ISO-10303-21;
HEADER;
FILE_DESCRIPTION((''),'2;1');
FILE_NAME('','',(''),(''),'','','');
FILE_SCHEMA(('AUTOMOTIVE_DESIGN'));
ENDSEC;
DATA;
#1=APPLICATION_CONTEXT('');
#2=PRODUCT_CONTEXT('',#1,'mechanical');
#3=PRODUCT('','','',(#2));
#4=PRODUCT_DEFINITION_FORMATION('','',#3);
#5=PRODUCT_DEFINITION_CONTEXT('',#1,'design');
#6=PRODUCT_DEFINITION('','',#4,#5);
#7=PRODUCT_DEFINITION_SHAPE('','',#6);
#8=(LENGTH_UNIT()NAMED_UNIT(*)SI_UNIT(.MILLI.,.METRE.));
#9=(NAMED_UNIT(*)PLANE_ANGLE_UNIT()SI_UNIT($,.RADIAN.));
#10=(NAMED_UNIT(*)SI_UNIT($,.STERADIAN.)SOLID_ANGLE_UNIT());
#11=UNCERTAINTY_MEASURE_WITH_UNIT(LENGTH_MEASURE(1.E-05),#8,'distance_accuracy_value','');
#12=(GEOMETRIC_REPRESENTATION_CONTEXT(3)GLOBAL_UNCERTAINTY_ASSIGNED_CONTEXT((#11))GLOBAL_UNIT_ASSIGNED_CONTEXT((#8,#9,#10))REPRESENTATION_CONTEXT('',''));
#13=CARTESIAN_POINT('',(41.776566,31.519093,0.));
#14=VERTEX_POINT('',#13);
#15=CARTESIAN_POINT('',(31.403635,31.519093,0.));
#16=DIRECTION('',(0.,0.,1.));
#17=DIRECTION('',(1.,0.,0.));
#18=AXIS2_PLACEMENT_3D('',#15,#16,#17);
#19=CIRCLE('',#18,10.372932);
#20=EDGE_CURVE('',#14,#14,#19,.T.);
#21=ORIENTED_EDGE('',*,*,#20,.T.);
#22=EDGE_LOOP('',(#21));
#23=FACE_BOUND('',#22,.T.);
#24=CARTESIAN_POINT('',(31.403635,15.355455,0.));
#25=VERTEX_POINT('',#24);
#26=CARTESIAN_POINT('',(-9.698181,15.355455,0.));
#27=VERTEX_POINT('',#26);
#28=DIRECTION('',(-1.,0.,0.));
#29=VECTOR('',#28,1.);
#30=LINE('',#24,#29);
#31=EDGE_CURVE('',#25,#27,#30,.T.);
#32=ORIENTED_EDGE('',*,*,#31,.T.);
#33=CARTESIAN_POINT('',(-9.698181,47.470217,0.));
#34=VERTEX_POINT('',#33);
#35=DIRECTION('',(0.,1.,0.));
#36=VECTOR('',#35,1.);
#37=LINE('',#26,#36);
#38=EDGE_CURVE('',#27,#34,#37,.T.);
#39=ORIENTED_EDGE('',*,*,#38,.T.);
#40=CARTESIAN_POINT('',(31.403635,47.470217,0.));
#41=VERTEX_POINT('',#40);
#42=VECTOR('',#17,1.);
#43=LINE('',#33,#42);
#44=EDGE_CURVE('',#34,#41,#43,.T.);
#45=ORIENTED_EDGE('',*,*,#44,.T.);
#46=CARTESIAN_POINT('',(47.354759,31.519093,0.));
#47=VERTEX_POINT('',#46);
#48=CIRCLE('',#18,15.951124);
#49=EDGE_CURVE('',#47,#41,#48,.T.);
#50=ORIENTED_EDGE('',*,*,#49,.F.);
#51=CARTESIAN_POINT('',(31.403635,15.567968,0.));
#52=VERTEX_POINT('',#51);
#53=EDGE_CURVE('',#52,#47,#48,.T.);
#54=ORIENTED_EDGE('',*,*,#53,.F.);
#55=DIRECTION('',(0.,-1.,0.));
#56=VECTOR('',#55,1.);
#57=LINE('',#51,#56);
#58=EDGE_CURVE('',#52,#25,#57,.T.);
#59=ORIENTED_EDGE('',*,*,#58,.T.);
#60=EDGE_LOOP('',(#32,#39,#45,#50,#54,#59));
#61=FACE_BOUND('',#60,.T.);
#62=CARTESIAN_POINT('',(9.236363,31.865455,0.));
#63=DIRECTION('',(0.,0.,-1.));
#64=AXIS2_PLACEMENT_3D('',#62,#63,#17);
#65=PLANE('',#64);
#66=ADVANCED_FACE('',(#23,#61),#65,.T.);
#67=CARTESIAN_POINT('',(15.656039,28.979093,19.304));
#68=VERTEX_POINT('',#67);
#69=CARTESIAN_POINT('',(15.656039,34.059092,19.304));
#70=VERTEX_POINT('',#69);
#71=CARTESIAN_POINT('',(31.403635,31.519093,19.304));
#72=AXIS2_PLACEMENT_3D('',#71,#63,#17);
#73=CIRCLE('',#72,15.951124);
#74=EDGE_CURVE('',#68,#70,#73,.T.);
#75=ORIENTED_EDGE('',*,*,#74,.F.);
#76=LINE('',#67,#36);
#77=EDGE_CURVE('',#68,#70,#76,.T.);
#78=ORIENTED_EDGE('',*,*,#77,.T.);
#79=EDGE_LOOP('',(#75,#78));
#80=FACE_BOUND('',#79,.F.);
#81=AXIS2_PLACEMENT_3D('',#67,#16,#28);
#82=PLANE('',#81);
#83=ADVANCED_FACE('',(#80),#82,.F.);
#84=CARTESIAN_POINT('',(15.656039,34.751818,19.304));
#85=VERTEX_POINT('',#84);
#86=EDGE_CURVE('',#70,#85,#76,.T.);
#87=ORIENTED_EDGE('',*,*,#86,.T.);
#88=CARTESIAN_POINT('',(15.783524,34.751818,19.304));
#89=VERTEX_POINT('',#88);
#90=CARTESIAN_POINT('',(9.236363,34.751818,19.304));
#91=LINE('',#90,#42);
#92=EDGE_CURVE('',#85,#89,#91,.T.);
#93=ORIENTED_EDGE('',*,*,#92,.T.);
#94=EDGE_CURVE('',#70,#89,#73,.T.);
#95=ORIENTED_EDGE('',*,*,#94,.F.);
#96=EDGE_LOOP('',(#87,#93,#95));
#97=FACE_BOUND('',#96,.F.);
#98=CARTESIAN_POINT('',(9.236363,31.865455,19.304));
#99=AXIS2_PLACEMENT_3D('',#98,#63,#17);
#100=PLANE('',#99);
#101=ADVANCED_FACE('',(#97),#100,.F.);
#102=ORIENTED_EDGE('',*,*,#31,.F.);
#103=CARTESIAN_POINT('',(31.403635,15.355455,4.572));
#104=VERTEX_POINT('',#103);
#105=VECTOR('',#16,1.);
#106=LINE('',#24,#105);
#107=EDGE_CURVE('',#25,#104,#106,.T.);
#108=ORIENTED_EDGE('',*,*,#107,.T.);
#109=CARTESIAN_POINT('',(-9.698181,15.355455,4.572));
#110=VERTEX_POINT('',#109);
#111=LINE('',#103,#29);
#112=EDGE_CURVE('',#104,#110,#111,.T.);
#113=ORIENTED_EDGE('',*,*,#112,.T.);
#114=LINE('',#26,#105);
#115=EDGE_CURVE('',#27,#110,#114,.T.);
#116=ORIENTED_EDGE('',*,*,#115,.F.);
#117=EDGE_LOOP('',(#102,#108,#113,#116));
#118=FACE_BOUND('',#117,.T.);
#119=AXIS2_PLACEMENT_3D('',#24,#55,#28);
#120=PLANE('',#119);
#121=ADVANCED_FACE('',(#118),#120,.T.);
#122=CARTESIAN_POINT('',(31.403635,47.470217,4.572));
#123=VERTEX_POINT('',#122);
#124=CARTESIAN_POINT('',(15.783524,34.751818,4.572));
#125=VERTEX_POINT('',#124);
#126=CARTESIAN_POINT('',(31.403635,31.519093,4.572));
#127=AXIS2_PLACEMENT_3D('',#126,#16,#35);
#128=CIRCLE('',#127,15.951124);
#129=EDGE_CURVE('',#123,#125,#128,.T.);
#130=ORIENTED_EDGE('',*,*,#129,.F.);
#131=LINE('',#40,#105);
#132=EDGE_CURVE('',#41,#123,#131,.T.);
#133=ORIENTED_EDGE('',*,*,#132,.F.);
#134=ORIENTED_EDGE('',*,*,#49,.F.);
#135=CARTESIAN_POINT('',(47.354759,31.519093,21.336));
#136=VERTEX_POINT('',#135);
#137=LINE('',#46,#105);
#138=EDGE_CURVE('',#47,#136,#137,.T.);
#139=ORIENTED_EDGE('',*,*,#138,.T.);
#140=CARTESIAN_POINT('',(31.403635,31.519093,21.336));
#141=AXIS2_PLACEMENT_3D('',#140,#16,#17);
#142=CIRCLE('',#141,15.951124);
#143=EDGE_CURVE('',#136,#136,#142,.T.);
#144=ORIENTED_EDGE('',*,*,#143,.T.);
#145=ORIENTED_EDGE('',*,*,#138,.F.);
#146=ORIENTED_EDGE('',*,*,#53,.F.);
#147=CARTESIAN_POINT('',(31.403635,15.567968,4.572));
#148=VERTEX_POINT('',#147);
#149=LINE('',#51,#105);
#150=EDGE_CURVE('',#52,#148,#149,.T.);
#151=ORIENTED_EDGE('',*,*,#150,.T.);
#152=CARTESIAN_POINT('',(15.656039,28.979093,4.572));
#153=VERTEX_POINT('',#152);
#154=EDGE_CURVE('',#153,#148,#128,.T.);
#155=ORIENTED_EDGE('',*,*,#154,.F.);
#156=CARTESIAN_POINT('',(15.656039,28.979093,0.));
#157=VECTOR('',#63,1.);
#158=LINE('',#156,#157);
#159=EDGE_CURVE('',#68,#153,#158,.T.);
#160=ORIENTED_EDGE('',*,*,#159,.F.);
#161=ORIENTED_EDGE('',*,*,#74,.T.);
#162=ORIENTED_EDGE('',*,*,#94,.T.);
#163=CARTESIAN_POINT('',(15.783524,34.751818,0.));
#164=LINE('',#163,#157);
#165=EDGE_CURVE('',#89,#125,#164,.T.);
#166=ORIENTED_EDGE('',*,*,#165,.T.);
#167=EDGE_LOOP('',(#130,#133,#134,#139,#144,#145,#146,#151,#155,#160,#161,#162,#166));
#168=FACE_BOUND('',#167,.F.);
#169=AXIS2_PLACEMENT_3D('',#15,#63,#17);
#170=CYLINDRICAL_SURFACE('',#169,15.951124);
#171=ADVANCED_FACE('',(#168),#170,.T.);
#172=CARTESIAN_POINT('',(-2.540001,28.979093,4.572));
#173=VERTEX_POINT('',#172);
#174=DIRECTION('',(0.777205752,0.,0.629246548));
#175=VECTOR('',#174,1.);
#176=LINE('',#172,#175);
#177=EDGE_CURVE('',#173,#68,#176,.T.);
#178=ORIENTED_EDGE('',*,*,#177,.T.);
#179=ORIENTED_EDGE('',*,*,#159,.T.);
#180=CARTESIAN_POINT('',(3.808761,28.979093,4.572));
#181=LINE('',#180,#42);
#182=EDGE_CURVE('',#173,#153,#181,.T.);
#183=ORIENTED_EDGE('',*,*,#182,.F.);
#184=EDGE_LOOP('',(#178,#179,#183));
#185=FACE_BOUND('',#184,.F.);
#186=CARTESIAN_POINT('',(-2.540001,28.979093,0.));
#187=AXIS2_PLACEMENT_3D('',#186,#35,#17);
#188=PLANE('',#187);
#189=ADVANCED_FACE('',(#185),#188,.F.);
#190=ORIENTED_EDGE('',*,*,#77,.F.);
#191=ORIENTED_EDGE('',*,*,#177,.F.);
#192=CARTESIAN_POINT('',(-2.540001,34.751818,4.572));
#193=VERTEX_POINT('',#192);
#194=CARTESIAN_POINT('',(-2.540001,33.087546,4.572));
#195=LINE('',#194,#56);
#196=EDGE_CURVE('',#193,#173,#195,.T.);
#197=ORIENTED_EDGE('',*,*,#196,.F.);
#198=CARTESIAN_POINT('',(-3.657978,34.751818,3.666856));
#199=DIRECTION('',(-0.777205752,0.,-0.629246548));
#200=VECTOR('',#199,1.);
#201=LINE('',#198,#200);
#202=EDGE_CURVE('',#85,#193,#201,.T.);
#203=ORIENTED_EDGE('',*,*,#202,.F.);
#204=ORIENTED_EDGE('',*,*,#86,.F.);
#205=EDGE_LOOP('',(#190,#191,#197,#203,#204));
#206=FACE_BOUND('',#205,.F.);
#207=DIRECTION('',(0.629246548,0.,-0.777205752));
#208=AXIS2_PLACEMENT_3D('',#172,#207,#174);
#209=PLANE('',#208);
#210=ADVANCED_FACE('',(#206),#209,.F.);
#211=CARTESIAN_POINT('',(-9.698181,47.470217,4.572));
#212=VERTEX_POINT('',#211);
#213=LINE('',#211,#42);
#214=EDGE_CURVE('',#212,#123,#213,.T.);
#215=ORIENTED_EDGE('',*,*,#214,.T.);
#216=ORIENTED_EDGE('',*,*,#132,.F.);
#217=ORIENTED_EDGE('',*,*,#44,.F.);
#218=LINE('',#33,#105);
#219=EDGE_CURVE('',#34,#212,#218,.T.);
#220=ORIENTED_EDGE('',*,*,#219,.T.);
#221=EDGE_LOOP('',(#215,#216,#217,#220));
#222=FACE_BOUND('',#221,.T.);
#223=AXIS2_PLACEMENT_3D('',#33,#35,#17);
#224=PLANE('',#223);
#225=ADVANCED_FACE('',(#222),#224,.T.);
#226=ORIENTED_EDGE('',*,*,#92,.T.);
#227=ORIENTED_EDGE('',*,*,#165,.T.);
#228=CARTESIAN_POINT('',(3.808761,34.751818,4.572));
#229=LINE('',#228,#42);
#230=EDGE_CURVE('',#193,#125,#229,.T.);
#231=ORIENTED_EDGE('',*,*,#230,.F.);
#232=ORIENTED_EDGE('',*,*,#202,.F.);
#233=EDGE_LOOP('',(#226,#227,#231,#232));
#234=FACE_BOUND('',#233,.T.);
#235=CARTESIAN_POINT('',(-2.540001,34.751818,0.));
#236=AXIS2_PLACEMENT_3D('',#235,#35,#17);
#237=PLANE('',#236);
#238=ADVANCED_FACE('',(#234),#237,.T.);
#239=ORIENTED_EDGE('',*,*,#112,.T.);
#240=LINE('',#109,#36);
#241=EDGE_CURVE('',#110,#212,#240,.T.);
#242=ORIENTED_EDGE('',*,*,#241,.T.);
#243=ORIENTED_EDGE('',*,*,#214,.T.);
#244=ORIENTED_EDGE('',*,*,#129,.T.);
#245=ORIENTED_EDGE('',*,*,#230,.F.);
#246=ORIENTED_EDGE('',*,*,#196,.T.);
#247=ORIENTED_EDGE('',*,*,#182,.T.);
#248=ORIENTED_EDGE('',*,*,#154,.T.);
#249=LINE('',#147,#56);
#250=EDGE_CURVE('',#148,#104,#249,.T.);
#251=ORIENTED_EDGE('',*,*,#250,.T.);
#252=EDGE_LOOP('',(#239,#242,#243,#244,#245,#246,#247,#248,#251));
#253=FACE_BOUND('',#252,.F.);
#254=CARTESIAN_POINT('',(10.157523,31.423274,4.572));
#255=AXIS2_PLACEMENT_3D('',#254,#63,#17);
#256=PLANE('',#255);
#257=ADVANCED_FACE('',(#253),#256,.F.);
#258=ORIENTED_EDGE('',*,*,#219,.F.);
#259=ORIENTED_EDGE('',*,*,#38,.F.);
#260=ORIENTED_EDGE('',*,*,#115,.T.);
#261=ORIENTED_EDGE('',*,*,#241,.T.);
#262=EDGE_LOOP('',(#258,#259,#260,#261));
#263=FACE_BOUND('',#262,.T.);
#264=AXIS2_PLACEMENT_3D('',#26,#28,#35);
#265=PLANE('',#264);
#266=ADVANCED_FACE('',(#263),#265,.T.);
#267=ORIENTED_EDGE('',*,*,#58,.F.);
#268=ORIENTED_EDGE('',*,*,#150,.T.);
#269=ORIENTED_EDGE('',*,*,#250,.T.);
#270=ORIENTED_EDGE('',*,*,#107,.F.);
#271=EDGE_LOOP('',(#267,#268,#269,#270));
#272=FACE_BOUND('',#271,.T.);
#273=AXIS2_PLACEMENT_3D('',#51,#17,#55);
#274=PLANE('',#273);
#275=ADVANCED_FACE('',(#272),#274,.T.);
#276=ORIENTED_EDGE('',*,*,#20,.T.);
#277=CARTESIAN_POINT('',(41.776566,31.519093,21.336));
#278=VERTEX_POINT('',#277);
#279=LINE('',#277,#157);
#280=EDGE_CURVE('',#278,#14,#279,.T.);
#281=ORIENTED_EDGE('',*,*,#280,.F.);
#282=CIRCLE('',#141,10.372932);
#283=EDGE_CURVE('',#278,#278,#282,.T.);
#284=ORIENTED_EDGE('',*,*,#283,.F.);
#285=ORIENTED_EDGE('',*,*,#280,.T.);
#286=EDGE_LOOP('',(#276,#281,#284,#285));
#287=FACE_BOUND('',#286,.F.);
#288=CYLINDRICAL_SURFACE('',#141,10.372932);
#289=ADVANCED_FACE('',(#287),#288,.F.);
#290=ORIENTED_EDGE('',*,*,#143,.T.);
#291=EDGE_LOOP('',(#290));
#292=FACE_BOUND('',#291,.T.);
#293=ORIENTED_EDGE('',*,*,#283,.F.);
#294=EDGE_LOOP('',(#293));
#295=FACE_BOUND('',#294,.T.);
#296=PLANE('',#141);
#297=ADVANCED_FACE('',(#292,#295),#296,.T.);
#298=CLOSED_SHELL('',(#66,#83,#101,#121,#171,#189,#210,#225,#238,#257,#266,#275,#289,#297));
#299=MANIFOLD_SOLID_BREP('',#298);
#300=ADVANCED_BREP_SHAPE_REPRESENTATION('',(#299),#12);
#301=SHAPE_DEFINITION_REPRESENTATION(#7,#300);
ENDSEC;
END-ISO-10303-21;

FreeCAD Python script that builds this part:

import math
import FreeCAD as App
import Part
import Sketcher

V = App.Vector
Q = App.Units.Quantity

doc = App.newDocument("Part")
params = doc.addObject("Spreadsheet::Sheet", "Params")
for row, (alias, value) in enumerate([
    ("pad1_length", "0.84 in"),
    ("pad2_length", "0.18 in"),
    ("pad3_length", "0.76 in"),
    ("sketch4_height", "0.58 in"),
    ("pocket1_length", "2.45 in"),
    ("pocket2_length", "1.85 in"),
], start=1):
    params.set(f"A{row}", alias)
    params.set(f"B{row}", "=" + value)
    params.setAlias(f"B{row}", alias)

body = doc.addObject("PartDesign::Body", "Body")

sketch1 = body.newObject("Sketcher::SketchObject", "Sketch")
sketch1.AttachmentSupport = (doc.getObject("XY_Plane"), [""])
sketch1.MapMode = "FlatFace"
sketch1.addGeometry(Part.Circle(V(31, 32, 0), V(0, 0, 1), 16), False)
sketch1.addConstraint(Sketcher.Constraint("Diameter", 0, Q("31.902249 mm")))
sketch1.addConstraint(Sketcher.Constraint("DistanceX", -1, 1, 0, 3, Q("31.403635 mm")))
sketch1.addConstraint(Sketcher.Constraint("DistanceY", -1, 1, 0, 3, Q("31.519093 mm")))
pad1 = body.newObject("PartDesign::Pad", "Pad")
pad1.Profile = sketch1
pad1.setExpression("Length", "Params.pad1_length")

sketch2 = body.newObject("Sketcher::SketchObject", "Sketch001")
sketch2.AttachmentSupport = (doc.getObject("XY_Plane"), [""])
sketch2.MapMode = "FlatFace"
sketch2.addGeometry(Part.LineSegment(V(-9.7, 47.47, 0), V(31.4, 47.47, 0)), False)
sketch2.addGeometry(Part.ArcOfCircle(Part.Circle(V(31.4, 31.52, 0), V(0, 0, 1), 15.95), math.radians(90), math.radians(270)), False)
sketch2.addGeometry(Part.LineSegment(V(31.4, 15.57, 0), V(31.4, 15.36, 0)), False)
sketch2.addGeometry(Part.LineSegment(V(31.4, 15.36, 0), V(-9.7, 15.36, 0)), False)
sketch2.addGeometry(Part.LineSegment(V(-9.7, 15.36, 0), V(-9.7, 47.47, 0)), False)
sketch2.addConstraint(Sketcher.Constraint("Tangent", 0, 2, 1, 1))
sketch2.addConstraint(Sketcher.Constraint("Coincident", 1, 2, 2, 1))
sketch2.addConstraint(Sketcher.Constraint("Coincident", 2, 2, 3, 1))
sketch2.addConstraint(Sketcher.Constraint("Coincident", 3, 2, 4, 1))
sketch2.addConstraint(Sketcher.Constraint("Coincident", 4, 2, 0, 1))
sketch2.addConstraint(Sketcher.Constraint("Horizontal", 0))
sketch2.addConstraint(Sketcher.Constraint("Vertical", 2))
sketch2.addConstraint(Sketcher.Constraint("Horizontal", 3))
sketch2.addConstraint(Sketcher.Constraint("Vertical", 4))
sketch2.addConstraint(Sketcher.Constraint("Vertical", 0, 2, 1, 2))
sketch2.addConstraint(Sketcher.Constraint("Radius", 1, Q("15.951124 mm")))
sketch2.addConstraint(Sketcher.Constraint("DistanceX", 0, 1, 0, 2, Q("41.101816 mm")))
sketch2.addConstraint(Sketcher.Constraint("DistanceY", 2, 2, 2, 1, Q("0.212513 mm")))
sketch2.addConstraint(Sketcher.Constraint("DistanceY", -1, 1, 1, 2, Q("15.567968 mm")))
sketch2.addConstraint(Sketcher.Constraint("DistanceX", 3, 2, -1, 1, Q("9.698181 mm")))
pad2 = body.newObject("PartDesign::Pad", "Pad001")
pad2.Profile = sketch2
pad2.setExpression("Length", "Params.pad2_length")

sketch3 = body.newObject("Sketcher::SketchObject", "Sketch002")
sketch3.AttachmentSupport = (doc.getObject("XY_Plane"), [""])
sketch3.MapMode = "FlatFace"
sketch3.addGeometry(Part.LineSegment(V(-3, 29, 0), V(-3, 35, 0)), False)
sketch3.addGeometry(Part.LineSegment(V(-3, 35, 0), V(21, 35, 0)), False)
sketch3.addGeometry(Part.LineSegment(V(21, 35, 0), V(21, 29, 0)), False)
sketch3.addGeometry(Part.LineSegment(V(21, 29, 0), V(-3, 29, 0)), False)
sketch3.addConstraint(Sketcher.Constraint("Coincident", 0, 2, 1, 1))
sketch3.addConstraint(Sketcher.Constraint("Coincident", 1, 2, 2, 1))
sketch3.addConstraint(Sketcher.Constraint("Coincident", 2, 2, 3, 1))
sketch3.addConstraint(Sketcher.Constraint("Coincident", 3, 2, 0, 1))
sketch3.addConstraint(Sketcher.Constraint("Vertical", 0))
sketch3.addConstraint(Sketcher.Constraint("Horizontal", 1))
sketch3.addConstraint(Sketcher.Constraint("Vertical", 2))
sketch3.addConstraint(Sketcher.Constraint("Horizontal", 3))
sketch3.addConstraint(Sketcher.Constraint("DistanceX", 0, 2, -1, 1, Q("0.1 in")))
sketch3.addConstraint(Sketcher.Constraint("DistanceX", 1, 1, 1, 2, Q("23.552728 mm")))
sketch3.addConstraint(Sketcher.Constraint("DistanceY", 0, 1, 0, 2, Q("5.772725 mm")))
sketch3.addConstraint(Sketcher.Constraint("DistanceY", -1, 1, 0, 2, Q("34.751818 mm")))
pad3 = body.newObject("PartDesign::Pad", "Pad002")
pad3.Profile = sketch3
pad3.setExpression("Length", "Params.pad3_length")

sketch4 = body.newObject("Sketcher::SketchObject", "Sketch003")
sketch4.AttachmentSupport = (doc.getObject("XZ_Plane"), [""])
sketch4.MapMode = "FlatFace"
sketch4.AttachmentOffset = App.Placement(V(0, 0, -28.979093), App.Rotation())
sketch4.addGeometry(Part.LineSegment(V(-3, 19, 0), V(-3, 5, 0)), False)
sketch4.addGeometry(Part.LineSegment(V(-3, 5, 0), V(16, 19, 0)), False)
sketch4.addGeometry(Part.LineSegment(V(16, 19, 0), V(-3, 19, 0)), False)
sketch4.addConstraint(Sketcher.Constraint("Coincident", 0, 2, 1, 1))
sketch4.addConstraint(Sketcher.Constraint("Coincident", 1, 2, 2, 1))
sketch4.addConstraint(Sketcher.Constraint("Coincident", 2, 2, 0, 1))
sketch4.addConstraint(Sketcher.Constraint("Vertical", 0))
sketch4.addConstraint(Sketcher.Constraint("Horizontal", 2))
sketch4.addConstraint(Sketcher.Constraint("DistanceY", 0, 2, 0, 1, Q("0.58 in")))
sketch4.addConstraint(Sketcher.Constraint("DistanceX", 0, 2, -1, 1, Q("0.1 in")))
sketch4.addConstraint(Sketcher.Constraint("DistanceY", -1, 1, 0, 2, Q("0.18 in")))
sketch4.addConstraint(Sketcher.Constraint("DistanceX", 2, 2, 2, 1, Q("18.19604 mm")))
sketch4.setExpression("Constraints[5]", "Params.sketch4_height")
pocket1 = body.newObject("PartDesign::Pocket", "Pocket")
pocket1.Profile = sketch4
pocket1.setExpression("Length", "Params.pocket1_length")

sketch5 = body.newObject("Sketcher::SketchObject", "Sketch004")
sketch5.AttachmentSupport = (doc.getObject("XY_Plane"), [""])
sketch5.MapMode = "FlatFace"
sketch5.AttachmentOffset = App.Placement(V(0, 0, 0.84 * 25.4), App.Rotation())
sketch5.addGeometry(Part.Circle(V(31, 32, 0), V(0, 0, 1), 10), False)
sketch5.addConstraint(Sketcher.Constraint("Diameter", 0, Q("20.745863 mm")))
sketch5.addConstraint(Sketcher.Constraint("DistanceX", -1, 1, 0, 3, Q("31.403635 mm")))
sketch5.addConstraint(Sketcher.Constraint("DistanceY", -1, 1, 0, 3, Q("31.519093 mm")))
pocket2 = body.newObject("PartDesign::Pocket", "Pocket001")
pocket2.Profile = sketch5
pocket2.setExpression("Length", "Params.pocket2_length")

doc.recompute()
